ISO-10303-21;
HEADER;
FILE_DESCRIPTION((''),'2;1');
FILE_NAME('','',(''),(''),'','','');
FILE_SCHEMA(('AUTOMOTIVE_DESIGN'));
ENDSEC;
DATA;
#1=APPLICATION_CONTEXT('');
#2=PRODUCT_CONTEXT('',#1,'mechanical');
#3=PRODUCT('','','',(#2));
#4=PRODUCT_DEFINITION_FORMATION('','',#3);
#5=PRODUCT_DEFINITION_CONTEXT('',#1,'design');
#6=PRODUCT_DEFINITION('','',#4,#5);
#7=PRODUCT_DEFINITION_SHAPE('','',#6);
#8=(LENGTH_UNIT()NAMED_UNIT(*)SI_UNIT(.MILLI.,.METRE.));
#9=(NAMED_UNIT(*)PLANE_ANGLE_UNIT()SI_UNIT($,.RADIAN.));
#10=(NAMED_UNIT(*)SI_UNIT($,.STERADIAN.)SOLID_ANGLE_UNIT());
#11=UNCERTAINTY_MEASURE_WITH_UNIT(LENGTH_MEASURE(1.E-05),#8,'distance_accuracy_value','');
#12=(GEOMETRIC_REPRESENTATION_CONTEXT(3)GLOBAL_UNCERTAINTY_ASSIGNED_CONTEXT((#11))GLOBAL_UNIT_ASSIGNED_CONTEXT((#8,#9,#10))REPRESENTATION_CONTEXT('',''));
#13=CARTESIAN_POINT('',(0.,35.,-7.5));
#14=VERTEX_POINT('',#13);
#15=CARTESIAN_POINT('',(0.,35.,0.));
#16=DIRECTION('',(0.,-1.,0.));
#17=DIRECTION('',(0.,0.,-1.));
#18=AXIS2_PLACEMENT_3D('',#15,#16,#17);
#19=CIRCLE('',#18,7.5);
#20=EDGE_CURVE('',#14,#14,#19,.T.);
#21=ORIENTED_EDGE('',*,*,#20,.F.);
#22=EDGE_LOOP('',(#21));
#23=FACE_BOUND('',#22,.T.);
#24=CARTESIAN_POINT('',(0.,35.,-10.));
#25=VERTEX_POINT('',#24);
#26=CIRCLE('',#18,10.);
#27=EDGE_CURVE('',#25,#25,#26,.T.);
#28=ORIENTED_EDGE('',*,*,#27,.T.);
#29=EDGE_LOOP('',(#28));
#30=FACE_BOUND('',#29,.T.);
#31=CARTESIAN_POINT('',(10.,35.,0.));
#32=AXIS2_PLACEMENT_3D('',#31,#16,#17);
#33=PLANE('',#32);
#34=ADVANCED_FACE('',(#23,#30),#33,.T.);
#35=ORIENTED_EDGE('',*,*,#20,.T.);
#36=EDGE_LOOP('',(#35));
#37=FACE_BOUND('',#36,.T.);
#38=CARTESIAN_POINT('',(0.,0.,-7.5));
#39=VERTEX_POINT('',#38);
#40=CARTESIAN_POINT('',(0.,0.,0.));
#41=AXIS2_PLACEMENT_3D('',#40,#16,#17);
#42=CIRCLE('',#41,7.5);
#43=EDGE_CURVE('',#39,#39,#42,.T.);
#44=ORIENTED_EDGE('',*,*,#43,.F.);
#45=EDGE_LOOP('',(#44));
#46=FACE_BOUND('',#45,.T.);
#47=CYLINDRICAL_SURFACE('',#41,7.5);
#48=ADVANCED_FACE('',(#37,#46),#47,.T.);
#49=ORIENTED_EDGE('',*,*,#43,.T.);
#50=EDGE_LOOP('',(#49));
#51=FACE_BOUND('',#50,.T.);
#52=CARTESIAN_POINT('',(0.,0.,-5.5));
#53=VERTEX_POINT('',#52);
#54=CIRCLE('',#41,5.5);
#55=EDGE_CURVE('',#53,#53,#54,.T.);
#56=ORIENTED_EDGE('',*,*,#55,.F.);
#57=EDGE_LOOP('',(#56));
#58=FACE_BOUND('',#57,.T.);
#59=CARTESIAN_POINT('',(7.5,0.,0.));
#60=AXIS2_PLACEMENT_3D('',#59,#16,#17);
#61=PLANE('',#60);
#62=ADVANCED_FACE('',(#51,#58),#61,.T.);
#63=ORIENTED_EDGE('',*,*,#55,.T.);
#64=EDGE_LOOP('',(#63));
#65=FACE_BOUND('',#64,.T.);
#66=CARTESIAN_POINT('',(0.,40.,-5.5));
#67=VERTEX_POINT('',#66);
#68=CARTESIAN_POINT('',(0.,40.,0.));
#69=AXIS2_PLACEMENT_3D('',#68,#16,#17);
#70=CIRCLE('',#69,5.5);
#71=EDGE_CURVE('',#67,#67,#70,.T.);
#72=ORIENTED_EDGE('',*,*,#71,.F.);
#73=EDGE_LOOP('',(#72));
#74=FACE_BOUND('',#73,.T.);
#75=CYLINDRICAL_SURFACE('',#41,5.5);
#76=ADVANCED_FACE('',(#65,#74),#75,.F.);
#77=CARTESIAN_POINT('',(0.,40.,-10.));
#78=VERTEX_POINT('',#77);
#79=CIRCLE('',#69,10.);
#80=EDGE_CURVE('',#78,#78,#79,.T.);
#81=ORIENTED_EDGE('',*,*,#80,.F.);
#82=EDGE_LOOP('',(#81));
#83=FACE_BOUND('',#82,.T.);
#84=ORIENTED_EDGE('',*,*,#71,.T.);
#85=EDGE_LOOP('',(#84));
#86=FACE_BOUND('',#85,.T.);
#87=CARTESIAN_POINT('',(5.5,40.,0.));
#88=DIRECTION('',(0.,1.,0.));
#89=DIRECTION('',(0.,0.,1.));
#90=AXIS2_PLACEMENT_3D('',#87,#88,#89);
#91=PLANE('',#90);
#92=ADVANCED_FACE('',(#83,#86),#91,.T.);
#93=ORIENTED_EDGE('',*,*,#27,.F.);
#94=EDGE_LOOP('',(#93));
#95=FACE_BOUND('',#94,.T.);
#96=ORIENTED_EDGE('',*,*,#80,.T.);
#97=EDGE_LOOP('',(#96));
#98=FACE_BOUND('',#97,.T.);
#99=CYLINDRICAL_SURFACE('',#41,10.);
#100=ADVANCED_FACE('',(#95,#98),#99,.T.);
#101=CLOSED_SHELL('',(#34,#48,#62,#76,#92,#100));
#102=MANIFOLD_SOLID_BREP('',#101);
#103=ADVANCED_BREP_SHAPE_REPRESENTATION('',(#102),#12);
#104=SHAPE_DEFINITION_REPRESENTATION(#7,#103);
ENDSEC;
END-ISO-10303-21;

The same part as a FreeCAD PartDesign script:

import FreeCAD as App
import Part
import Sketcher
from FreeCAD import Vector

doc = App.newDocument("Part")
params = doc.addObject("Spreadsheet::Sheet", "Params")
for row, (alias, value) in enumerate([
    ("sketch1_width", "2 mm"),
    ("sketch1_height", "40 mm"),
    ("sketch1_height2", "35 mm"),
    ("sketch1_width2", "2.5 mm"),
    ("revolution_angle", "360 deg"),
], start=1):
    params.set(f"A{row}", alias)
    params.set(f"B{row}", "=" + value)
    params.setAlias(f"B{row}", alias)

body = doc.addObject("PartDesign::Body", "Body")

sketch1 = body.newObject("Sketcher::SketchObject", "Sketch")
sketch1.AttachmentSupport = (doc.getObject("XY_Plane"), [""])
sketch1.MapMode = "FlatFace"
sketch1.addGeometry([
    Part.LineSegment(Vector(5.5, 40, 0), Vector(5.5, 0, 0)),
    Part.LineSegment(Vector(5.5, 0, 0), Vector(7.5, 0, 0)),
    Part.LineSegment(Vector(7.5, 0, 0), Vector(7.5, 35, 0)),
    Part.LineSegment(Vector(7.5, 35, 0), Vector(10, 35, 0)),
    Part.LineSegment(Vector(10, 35, 0), Vector(10, 40, 0)),
    Part.LineSegment(Vector(10, 40, 0), Vector(5.5, 40, 0)),
], False)
sketch1.addConstraint([
    Sketcher.Constraint("Coincident", 0, 2, 1, 1),
    Sketcher.Constraint("Coincident", 1, 2, 2, 1),
    Sketcher.Constraint("Coincident", 2, 2, 3, 1),
    Sketcher.Constraint("Coincident", 3, 2, 4, 1),
    Sketcher.Constraint("Coincident", 4, 2, 5, 1),
    Sketcher.Constraint("Coincident", 5, 2, 0, 1),
    Sketcher.Constraint("Vertical", 0),
    Sketcher.Constraint("Horizontal", 1),
    Sketcher.Constraint("Vertical", 2),
    Sketcher.Constraint("Horizontal", 3),
    Sketcher.Constraint("Vertical", 4),
    Sketcher.Constraint("Horizontal", 5),
    Sketcher.Constraint("PointOnObject", 0, 2, -1),
    Sketcher.Constraint("DistanceX", 1, 1, 1, 2, 2.0),
    Sketcher.Constraint("DistanceY", 0, 2, 0, 1, 40.0),
    Sketcher.Constraint("DistanceY", 2, 1, 2, 2, 35.0),
    Sketcher.Constraint("DistanceX", 3, 1, 3, 2, 2.5),
    Sketcher.Constraint("DistanceX", -1, 1, 3, 2, 10.0),
])
sketch1.setExpression("Constraints[13]", "Params.sketch1_width")
sketch1.setExpression("Constraints[14]", "Params.sketch1_height")
sketch1.setExpression("Constraints[15]", "Params.sketch1_height2")
sketch1.setExpression("Constraints[16]", "Params.sketch1_width2")
revolution = body.newObject("PartDesign::Revolution", "Revolution")
revolution.Profile = sketch1
revolution.ReferenceAxis = (sketch1, ["V_Axis"])
revolution.setExpression("Angle", "Params.revolution_angle")

doc.recompute()
